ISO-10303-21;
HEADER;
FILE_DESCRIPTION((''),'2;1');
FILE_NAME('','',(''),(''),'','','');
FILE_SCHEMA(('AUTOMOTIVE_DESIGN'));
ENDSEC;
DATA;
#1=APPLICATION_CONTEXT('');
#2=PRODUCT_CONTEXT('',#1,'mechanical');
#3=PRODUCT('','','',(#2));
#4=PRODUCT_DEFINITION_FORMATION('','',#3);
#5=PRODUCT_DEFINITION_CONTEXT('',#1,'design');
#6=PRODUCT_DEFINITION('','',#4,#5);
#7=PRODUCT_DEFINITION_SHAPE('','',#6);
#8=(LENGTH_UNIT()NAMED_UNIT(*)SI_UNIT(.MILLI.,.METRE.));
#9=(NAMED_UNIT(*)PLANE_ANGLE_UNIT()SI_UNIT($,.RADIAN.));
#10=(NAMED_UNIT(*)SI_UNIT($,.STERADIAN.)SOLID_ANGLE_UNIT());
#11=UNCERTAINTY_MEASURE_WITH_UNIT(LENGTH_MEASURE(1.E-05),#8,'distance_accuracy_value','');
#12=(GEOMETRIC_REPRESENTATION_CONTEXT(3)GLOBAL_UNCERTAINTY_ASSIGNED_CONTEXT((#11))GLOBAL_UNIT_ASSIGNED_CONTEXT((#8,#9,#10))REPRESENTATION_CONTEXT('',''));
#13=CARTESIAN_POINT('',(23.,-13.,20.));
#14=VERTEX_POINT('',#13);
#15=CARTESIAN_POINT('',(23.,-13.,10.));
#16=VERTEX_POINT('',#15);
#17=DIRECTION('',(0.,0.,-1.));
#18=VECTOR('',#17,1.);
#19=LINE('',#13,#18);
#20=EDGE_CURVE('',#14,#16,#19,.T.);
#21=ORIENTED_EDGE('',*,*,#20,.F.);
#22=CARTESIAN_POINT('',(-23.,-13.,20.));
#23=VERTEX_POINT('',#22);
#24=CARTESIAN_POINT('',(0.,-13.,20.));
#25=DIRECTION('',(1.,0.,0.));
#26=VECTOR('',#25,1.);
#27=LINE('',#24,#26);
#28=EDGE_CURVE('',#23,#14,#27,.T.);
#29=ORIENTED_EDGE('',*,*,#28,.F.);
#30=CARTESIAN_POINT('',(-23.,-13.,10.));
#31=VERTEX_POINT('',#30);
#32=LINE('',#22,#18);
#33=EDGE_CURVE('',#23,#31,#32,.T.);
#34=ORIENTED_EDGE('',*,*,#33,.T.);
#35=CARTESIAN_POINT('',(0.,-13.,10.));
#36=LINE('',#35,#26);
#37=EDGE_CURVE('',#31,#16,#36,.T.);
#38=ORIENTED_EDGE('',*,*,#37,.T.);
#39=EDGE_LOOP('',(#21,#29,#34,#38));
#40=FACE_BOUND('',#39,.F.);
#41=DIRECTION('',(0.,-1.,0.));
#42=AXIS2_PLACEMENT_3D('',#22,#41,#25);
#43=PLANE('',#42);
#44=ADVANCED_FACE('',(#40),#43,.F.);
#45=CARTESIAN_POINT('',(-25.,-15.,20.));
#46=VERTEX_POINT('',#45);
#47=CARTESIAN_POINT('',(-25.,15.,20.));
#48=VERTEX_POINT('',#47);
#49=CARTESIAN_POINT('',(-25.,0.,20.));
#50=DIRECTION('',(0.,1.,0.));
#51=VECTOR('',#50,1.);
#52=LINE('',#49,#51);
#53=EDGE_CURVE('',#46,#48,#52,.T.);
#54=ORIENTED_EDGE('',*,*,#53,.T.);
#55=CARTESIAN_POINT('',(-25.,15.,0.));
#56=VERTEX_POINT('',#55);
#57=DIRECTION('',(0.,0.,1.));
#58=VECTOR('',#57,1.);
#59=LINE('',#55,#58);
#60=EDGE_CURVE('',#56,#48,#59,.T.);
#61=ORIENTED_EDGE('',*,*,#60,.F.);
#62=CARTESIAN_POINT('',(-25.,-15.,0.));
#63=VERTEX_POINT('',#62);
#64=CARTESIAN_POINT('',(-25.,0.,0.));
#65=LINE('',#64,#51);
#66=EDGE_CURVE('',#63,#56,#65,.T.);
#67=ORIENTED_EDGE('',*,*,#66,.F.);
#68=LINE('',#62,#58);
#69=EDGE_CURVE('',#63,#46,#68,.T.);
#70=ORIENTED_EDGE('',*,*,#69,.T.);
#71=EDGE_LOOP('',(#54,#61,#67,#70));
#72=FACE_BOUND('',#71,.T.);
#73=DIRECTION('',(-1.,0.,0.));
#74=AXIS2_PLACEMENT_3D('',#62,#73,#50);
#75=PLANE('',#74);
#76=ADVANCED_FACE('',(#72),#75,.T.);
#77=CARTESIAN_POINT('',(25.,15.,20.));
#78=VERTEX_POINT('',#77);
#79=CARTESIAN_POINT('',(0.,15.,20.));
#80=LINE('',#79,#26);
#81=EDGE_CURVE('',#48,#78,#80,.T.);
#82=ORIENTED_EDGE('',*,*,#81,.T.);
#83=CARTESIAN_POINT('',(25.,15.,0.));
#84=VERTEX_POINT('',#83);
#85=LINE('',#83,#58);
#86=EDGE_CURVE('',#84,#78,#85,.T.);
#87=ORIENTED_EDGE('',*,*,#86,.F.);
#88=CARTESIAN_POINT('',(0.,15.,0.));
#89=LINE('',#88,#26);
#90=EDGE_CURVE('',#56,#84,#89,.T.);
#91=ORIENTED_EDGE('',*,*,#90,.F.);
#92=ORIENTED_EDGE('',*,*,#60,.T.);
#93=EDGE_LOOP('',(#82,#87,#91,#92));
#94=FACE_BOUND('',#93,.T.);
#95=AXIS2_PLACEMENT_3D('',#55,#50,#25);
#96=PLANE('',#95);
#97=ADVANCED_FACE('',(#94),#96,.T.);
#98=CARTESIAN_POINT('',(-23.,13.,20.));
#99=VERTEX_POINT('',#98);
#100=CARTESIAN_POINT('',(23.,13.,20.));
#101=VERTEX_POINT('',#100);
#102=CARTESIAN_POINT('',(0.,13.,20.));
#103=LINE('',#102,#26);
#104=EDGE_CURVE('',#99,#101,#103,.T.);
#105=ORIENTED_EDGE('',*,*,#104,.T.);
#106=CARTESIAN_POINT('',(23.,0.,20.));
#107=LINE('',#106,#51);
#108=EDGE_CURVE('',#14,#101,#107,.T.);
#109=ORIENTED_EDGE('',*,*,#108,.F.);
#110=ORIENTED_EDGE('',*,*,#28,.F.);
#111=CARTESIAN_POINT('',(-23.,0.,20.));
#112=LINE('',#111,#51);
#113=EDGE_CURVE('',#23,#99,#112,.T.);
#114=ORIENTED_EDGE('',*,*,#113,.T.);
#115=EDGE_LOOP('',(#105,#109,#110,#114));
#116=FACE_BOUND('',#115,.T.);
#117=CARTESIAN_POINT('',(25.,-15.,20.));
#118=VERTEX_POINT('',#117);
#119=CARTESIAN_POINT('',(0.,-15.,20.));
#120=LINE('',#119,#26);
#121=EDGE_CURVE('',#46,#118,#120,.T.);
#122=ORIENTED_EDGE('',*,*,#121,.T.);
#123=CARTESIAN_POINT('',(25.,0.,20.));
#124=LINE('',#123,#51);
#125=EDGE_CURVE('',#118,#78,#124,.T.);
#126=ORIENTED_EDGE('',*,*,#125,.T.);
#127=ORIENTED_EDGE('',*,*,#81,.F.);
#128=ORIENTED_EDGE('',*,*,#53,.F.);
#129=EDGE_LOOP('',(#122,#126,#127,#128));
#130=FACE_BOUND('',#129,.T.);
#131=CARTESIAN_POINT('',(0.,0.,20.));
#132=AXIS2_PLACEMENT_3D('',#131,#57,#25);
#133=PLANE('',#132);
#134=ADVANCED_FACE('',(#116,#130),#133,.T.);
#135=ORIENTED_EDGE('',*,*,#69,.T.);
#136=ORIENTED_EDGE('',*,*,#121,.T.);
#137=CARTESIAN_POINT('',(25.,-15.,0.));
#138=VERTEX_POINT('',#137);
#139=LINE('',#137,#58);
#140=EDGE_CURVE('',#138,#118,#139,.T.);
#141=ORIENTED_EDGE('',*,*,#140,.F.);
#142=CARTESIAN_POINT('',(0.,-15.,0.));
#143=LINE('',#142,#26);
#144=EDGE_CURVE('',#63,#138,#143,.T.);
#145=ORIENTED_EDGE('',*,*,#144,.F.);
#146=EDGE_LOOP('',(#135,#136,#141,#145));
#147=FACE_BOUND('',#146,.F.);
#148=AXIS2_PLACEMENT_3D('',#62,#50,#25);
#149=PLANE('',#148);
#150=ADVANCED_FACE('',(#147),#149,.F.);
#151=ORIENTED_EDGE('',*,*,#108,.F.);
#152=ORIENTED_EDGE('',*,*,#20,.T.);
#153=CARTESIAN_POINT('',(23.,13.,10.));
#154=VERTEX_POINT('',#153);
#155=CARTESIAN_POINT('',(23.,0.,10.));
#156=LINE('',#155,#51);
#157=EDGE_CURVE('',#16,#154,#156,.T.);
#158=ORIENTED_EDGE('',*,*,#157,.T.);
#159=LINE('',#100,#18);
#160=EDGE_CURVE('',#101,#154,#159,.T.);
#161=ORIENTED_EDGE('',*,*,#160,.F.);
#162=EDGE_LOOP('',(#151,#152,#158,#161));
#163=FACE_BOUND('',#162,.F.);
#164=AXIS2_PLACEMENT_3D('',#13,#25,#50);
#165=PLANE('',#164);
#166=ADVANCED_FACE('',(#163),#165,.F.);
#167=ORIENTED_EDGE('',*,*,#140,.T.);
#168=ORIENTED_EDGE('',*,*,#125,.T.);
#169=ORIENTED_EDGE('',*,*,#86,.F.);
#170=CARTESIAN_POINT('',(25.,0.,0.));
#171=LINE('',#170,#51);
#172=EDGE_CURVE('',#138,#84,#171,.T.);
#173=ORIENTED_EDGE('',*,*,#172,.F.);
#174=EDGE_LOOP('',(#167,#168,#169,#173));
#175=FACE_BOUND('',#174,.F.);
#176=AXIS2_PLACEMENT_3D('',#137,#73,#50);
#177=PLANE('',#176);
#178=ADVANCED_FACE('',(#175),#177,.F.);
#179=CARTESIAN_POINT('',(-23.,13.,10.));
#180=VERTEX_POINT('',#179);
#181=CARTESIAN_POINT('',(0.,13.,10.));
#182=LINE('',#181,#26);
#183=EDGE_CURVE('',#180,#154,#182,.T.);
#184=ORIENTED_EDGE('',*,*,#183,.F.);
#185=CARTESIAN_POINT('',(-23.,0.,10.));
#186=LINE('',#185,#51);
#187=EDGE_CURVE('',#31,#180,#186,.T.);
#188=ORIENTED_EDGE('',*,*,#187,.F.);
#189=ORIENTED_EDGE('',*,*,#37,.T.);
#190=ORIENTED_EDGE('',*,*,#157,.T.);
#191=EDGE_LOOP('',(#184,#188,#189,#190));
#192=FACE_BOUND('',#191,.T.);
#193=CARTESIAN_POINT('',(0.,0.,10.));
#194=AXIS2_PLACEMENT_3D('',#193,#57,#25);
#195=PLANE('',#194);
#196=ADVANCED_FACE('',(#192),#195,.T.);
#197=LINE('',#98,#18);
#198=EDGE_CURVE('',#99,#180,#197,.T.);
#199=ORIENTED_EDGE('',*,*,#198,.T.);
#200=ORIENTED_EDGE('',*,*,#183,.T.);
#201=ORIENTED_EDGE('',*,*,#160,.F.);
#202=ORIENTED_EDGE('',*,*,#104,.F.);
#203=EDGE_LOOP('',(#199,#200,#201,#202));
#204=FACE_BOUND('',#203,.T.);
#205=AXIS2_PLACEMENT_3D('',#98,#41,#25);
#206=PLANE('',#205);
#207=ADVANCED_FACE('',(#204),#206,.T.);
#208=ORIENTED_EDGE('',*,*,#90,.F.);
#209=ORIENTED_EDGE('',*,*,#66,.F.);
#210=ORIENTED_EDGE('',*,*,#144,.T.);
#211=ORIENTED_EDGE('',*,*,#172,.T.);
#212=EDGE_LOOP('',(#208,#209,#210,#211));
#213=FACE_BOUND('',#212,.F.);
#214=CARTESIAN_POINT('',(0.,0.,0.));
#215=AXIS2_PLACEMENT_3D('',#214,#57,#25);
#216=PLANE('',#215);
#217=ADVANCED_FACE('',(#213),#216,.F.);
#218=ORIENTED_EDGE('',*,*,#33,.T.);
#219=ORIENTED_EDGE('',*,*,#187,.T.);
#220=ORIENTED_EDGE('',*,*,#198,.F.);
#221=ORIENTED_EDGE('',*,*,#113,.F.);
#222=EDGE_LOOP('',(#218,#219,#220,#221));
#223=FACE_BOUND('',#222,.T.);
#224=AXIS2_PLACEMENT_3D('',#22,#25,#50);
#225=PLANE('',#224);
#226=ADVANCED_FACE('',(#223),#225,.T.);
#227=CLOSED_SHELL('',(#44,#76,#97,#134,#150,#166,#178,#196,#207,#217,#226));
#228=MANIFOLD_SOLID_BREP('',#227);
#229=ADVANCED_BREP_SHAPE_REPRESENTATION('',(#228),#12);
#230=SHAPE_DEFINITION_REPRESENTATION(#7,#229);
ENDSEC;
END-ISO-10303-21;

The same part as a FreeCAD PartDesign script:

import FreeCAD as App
import Part
import Sketcher

doc = App.newDocument("Part")
body = doc.addObject("PartDesign::Body", "Body")

sketch1 = body.newObject("Sketcher::SketchObject", "Sketch")
sketch1.AttachmentSupport = (doc.getObject("XY_Plane"), [""])
sketch1.MapMode = "FlatFace"
sketch1.addGeometry([
    Part.LineSegment(App.Vector(-25, 15, 0), App.Vector(-25, -15, 0)),
    Part.LineSegment(App.Vector(-25, -15, 0), App.Vector(25, -15, 0)),
    Part.LineSegment(App.Vector(25, -15, 0), App.Vector(25, 15, 0)),
    Part.LineSegment(App.Vector(25, 15, 0), App.Vector(-25, 15, 0)),
], False)
sketch1.addConstraint([
    Sketcher.Constraint("Coincident", 0, 2, 1, 1),
    Sketcher.Constraint("Coincident", 1, 2, 2, 1),
    Sketcher.Constraint("Coincident", 2, 2, 3, 1),
    Sketcher.Constraint("Coincident", 3, 2, 0, 1),
    Sketcher.Constraint("Vertical", 0),
    Sketcher.Constraint("Horizontal", 1),
    Sketcher.Constraint("Vertical", 2),
    Sketcher.Constraint("Horizontal", 3),
    Sketcher.Constraint("Symmetric", 0, 2, 2, 2, -1, 1),
    Sketcher.Constraint("DistanceX", 1, 1, 1, 2, 50.0),
    Sketcher.Constraint("DistanceY", 0, 2, 0, 1, 30.0),
])
pad1 = body.newObject("PartDesign::Pad", "Pad")
pad1.Profile = sketch1
pad1.Length = 20

sketch2 = body.newObject("Sketcher::SketchObject", "Sketch001")
sketch2.AttachmentSupport = (doc.getObject("XY_Plane"), [""])
sketch2.MapMode = "FlatFace"
sketch2.AttachmentOffset = App.Placement(App.Vector(0, 0, 20), App.Rotation())
sketch2.addGeometry([
    Part.LineSegment(App.Vector(-23, 13, 0), App.Vector(-23, -13, 0)),
    Part.LineSegment(App.Vector(-23, -13, 0), App.Vector(23, -13, 0)),
    Part.LineSegment(App.Vector(23, -13, 0), App.Vector(23, 13, 0)),
    Part.LineSegment(App.Vector(23, 13, 0), App.Vector(-23, 13, 0)),
], False)
sketch2.addConstraint([
    Sketcher.Constraint("Coincident", 0, 2, 1, 1),
    Sketcher.Constraint("Coincident", 1, 2, 2, 1),
    Sketcher.Constraint("Coincident", 2, 2, 3, 1),
    Sketcher.Constraint("Coincident", 3, 2, 0, 1),
    Sketcher.Constraint("Vertical", 0),
    Sketcher.Constraint("Horizontal", 1),
    Sketcher.Constraint("Vertical", 2),
    Sketcher.Constraint("Horizontal", 3),
    Sketcher.Constraint("Symmetric", 0, 2, 2, 2, -1, 1),
    Sketcher.Constraint("DistanceX", 1, 1, 1, 2, 46.0),
    Sketcher.Constraint("DistanceY", 0, 2, 0, 1, 26.0),
])
pocket1 = body.newObject("PartDesign::Pocket", "Pocket")
pocket1.Profile = sketch2
pocket1.Length = 10

doc.recompute()
